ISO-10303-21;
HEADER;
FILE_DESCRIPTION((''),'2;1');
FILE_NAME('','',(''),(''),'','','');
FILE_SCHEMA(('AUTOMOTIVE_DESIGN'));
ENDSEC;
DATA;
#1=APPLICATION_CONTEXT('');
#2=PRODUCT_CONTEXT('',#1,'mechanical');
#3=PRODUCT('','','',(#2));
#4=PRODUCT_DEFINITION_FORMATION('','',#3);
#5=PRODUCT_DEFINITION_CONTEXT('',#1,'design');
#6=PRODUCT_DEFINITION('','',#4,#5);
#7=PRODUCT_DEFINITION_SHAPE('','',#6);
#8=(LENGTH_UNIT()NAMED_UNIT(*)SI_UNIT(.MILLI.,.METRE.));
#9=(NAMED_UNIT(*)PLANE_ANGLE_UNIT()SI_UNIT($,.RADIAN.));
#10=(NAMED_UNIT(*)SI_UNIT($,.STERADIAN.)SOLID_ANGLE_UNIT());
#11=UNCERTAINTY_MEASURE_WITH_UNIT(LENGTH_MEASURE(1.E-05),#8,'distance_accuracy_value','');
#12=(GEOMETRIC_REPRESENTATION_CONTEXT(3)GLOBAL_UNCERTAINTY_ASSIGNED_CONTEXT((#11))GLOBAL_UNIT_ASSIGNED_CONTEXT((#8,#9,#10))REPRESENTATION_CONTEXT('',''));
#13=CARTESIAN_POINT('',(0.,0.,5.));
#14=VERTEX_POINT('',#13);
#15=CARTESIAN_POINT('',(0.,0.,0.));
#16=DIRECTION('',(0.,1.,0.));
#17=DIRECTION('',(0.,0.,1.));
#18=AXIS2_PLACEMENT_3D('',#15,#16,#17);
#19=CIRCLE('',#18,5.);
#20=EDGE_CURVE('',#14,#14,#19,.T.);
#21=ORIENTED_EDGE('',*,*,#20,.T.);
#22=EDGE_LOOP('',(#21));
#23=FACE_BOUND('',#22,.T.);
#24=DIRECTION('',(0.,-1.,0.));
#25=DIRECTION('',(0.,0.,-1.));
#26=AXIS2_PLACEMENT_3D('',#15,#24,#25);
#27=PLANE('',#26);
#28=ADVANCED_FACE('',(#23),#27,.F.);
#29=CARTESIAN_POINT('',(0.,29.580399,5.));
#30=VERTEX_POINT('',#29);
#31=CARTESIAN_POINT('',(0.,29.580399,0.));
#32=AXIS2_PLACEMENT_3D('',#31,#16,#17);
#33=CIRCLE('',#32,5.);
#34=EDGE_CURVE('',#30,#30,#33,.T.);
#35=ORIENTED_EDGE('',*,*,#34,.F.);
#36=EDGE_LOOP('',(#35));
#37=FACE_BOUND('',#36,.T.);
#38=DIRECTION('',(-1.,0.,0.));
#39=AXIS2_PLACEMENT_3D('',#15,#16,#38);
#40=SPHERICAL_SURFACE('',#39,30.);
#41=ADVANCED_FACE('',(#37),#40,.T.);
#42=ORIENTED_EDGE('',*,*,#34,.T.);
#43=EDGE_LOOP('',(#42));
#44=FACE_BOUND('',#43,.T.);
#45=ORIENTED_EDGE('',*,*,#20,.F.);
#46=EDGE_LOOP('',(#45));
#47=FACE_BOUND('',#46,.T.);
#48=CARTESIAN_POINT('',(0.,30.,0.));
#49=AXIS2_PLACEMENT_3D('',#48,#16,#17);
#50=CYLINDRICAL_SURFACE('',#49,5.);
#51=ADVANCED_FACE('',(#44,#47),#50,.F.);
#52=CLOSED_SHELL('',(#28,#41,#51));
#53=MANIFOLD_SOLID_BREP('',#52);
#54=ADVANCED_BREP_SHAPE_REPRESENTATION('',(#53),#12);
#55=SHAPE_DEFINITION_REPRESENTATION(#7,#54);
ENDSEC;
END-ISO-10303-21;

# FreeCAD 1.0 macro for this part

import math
import FreeCAD as App
import Part
import Sketcher

V = App.Vector
Q = App.Units.Quantity

doc = App.newDocument("Part")
body = doc.addObject("PartDesign::Body", "Body")

# Sketch on XY plane
sketch1 = doc.addObject("Sketcher::SketchObject", "Sketch")
body.addObject(sketch1)
sketch1.AttachmentSupport = (doc.XY_Plane, [""])
sketch1.MapMode = "FlatFace"
sketch1.addGeometry([
    Part.LineSegment(V(-5, 0, 0), V(-5, 30, 0)),
    Part.ArcOfCircle(Part.Circle(V(0, 0, 0), V(0, 0, 1), 30), math.radians(100), math.radians(270)),
    Part.LineSegment(V(0, -30, 0), V(0, 0, 0)),
    Part.LineSegment(V(0, 0, 0), V(-5, 0, 0)),
], False)
sketch1.addConstraint([
    Sketcher.Constraint("Coincident", 0, 2, 1, 1),
    Sketcher.Constraint("Coincident", 1, 2, 2, 1),
    Sketcher.Constraint("Coincident", 2, 2, 3, 1),
    Sketcher.Constraint("Coincident", 3, 2, 0, 1),
    Sketcher.Constraint("Vertical", 0),
    Sketcher.Constraint("Vertical", 2),
    Sketcher.Constraint("Horizontal", 3),
    Sketcher.Constraint("Coincident", 1, 3, -1, 1),
    Sketcher.Constraint("Coincident", 2, 2, -1, 1),
    Sketcher.Constraint("Radius", 1, Q("30 mm")),
    Sketcher.Constraint("DistanceX", 3, 2, 3, 1, Q("5 mm")),
])
revolution = doc.addObject("PartDesign::Revolution", "Revolution")
body.addObject(revolution)
revolution.Profile = sketch1
revolution.ReferenceAxis = (sketch1, ["V_Axis"])
revolution.Angle = 360

doc.recompute()
